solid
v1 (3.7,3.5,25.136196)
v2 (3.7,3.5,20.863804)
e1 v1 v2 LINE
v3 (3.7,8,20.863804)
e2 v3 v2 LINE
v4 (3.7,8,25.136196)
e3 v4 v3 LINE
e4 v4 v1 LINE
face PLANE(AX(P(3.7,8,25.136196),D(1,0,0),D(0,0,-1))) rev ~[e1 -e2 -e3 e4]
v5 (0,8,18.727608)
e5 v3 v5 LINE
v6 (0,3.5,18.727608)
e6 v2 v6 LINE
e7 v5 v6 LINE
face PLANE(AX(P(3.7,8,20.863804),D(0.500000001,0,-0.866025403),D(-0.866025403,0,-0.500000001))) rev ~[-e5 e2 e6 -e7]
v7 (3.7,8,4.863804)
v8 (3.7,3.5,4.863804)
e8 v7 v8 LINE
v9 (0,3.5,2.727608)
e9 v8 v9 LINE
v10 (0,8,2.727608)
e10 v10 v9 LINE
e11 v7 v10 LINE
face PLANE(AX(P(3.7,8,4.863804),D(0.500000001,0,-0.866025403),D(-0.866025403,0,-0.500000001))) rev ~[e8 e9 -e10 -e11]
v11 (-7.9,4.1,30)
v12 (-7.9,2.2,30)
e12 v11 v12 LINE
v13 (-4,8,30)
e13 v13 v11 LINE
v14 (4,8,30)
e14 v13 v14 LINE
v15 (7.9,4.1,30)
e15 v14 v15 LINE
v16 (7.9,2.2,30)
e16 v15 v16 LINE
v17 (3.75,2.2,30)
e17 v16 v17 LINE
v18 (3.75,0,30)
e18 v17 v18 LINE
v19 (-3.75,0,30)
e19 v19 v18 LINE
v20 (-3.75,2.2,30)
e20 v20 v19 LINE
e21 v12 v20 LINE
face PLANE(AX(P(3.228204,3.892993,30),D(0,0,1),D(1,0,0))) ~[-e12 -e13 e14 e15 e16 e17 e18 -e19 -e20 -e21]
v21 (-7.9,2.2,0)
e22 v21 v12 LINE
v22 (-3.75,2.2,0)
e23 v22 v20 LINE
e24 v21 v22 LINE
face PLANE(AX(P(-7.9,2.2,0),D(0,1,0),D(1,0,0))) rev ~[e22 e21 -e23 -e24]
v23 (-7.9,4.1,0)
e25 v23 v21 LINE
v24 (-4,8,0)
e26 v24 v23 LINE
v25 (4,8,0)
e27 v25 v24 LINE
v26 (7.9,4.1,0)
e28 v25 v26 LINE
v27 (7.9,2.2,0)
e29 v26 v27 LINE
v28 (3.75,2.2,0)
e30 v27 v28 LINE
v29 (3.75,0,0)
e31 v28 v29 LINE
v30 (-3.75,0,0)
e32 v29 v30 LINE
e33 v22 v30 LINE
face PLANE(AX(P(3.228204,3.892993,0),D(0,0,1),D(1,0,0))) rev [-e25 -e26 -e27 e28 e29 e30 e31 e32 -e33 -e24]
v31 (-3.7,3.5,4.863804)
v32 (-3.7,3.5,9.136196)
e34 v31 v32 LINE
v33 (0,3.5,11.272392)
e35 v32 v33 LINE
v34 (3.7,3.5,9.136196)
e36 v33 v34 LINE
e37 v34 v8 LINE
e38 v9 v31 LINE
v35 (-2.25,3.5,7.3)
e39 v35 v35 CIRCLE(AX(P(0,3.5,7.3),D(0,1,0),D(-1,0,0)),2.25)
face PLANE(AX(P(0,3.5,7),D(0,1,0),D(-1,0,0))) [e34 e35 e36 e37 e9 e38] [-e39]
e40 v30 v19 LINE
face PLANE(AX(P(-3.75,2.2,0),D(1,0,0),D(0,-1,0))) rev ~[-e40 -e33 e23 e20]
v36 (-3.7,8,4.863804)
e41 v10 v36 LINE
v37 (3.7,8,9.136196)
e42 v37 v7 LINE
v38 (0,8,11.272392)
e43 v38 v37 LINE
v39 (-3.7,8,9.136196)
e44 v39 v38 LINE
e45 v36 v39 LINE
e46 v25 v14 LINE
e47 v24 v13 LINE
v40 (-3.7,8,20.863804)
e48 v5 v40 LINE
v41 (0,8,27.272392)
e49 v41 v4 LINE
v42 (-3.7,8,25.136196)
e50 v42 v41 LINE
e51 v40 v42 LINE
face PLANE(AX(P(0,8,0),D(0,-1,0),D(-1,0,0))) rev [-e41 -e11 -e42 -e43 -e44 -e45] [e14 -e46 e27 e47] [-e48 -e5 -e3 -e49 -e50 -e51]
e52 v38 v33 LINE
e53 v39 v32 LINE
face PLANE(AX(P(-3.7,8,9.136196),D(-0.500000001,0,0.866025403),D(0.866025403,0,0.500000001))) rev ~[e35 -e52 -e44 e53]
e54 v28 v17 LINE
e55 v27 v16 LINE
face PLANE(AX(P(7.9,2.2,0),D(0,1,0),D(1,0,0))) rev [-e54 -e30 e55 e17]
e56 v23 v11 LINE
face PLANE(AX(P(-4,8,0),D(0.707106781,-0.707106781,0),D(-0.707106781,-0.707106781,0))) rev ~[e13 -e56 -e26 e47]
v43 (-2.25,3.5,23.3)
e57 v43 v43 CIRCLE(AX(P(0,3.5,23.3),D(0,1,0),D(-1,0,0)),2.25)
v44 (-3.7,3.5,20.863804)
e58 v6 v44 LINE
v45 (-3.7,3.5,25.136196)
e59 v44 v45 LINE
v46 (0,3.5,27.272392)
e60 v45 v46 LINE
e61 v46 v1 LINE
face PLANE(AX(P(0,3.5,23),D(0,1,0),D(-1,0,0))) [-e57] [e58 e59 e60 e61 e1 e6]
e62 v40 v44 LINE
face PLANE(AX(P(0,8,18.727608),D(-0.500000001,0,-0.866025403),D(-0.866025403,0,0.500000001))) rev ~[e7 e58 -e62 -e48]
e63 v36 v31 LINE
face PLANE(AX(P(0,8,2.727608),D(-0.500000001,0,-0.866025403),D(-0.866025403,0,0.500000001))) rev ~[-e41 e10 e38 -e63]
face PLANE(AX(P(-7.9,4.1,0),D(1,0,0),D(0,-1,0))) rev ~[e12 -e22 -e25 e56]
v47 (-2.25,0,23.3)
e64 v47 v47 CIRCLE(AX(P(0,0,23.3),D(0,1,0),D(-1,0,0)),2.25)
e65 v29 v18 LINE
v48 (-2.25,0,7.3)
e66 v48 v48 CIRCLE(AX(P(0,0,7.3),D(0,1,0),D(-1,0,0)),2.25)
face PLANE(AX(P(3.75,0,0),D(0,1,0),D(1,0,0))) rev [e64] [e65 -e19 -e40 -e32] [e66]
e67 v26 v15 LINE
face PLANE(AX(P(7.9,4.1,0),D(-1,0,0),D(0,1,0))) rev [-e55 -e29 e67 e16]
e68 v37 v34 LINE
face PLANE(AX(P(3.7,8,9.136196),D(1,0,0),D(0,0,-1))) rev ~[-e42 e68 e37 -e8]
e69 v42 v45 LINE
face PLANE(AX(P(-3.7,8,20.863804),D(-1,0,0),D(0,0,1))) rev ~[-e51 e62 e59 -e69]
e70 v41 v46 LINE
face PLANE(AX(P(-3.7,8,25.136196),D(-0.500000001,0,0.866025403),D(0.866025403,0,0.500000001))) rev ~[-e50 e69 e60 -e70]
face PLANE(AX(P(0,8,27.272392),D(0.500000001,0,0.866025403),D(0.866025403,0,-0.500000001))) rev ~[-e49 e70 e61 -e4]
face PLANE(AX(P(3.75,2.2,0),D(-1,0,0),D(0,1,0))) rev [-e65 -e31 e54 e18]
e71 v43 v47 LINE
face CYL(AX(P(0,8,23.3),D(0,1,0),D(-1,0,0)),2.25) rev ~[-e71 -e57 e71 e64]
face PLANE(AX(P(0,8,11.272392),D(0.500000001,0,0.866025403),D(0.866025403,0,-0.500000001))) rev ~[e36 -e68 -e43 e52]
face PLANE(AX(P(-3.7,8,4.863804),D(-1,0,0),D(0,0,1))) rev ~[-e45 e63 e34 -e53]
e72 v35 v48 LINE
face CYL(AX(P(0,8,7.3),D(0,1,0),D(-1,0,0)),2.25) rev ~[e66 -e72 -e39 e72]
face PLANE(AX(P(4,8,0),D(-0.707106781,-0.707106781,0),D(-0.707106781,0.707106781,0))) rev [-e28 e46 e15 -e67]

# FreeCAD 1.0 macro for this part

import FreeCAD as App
import Part
import Sketcher

V = App.Vector
Q = App.Units.Quantity

doc = App.newDocument("Part")
body = doc.addObject("PartDesign::Body", "Body")

sketch1 = body.newObject("Sketcher::SketchObject", "Sketch")
sketch1.AttachmentSupport = (doc.getObject("XY_Plane"), [""])
sketch1.MapMode = "FlatFace"
sketch1.addGeometry([
    Part.LineSegment(V(0, 0, 0), V(0, 8, 0)),
    Part.LineSegment(V(0, 8, 0), V(-4, 8, 0)),
    Part.LineSegment(V(-4, 8, 0), V(-7.9, 4.1, 0)),
    Part.LineSegment(V(-7.9, 4.1, 0), V(-7.9, 2.2, 0)),
    Part.LineSegment(V(-7.9, 2.2, 0), V(-3.8, 2.2, 0)),
    Part.LineSegment(V(-3.8, 2.2, 0), V(-3.8, 0, 0)),
    Part.LineSegment(V(-3.8, 0, 0), V(0, 0, 0)),
], False)
sketch1.addConstraint([
    Sketcher.Constraint("Coincident", 0, 2, 1, 1),
    Sketcher.Constraint("Coincident", 1, 2, 2, 1),
    Sketcher.Constraint("Coincident", 2, 2, 3, 1),
    Sketcher.Constraint("Coincident", 3, 2, 4, 1),
    Sketcher.Constraint("Coincident", 4, 2, 5, 1),
    Sketcher.Constraint("Coincident", 5, 2, 6, 1),
    Sketcher.Constraint("Coincident", 6, 2, 0, 1),
    Sketcher.Constraint("Vertical", 0),
    Sketcher.Constraint("Horizontal", 1),
    Sketcher.Constraint("Vertical", 3),
    Sketcher.Constraint("Horizontal", 4),
    Sketcher.Constraint("Vertical", 5),
    Sketcher.Constraint("Horizontal", 6),
    Sketcher.Constraint("Coincident", 6, 2, -1, 1),
    Sketcher.Constraint("DistanceX", 1, 2, 1, 1, Q("4 mm")),
    Sketcher.Constraint("DistanceY", 0, 1, 0, 2, Q("8 mm")),
    Sketcher.Constraint("Angle", 2, Q("-135 deg")),
    Sketcher.Constraint("DistanceY", 3, 2, 3, 1, Q("1.9 mm")),
    Sketcher.Constraint("DistanceY", 5, 2, 5, 1, Q("2.2 mm")),
    Sketcher.Constraint("DistanceX", 4, 1, 4, 2, Q("4.15 mm")),
])
pad1 = body.newObject("PartDesign::Pad", "Pad")
pad1.Profile = sketch1
pad1.Length = 30
doc.recompute()

mirrored = body.newObject("PartDesign::Mirrored", "Mirrored")
mirrored.Originals = [pad1]
mirrored.MirrorPlane = (doc.getObject("YZ_Plane"), [""])
body.Tip = mirrored

sketch2 = body.newObject("Sketcher::SketchObject", "Sketch001")
sketch2.AttachmentSupport = (doc.getObject("XZ_Plane"), [""])
sketch2.MapMode = "FlatFace"
sketch2.AttachmentOffset = App.Placement(V(0, 0, -8), App.Rotation())
sketch2.addGeometry([
    Part.LineSegment(V(0, 2.7, 0), V(-3.7, 4.9, 0)),
    Part.LineSegment(V(-3.7, 4.9, 0), V(-3.7, 9.1, 0)),
    Part.LineSegment(V(-3.7, 9.1, 0), V(0, 11.3, 0)),
    Part.LineSegment(V(0, 11.3, 0), V(3.7, 9.1, 0)),
    Part.LineSegment(V(3.7, 9.1, 0), V(3.7, 4.9, 0)),
    Part.LineSegment(V(3.7, 4.9, 0), V(0, 2.7, 0)),
], False)
sketch2.addConstraint([
    Sketcher.Constraint("Coincident", 0, 2, 1, 1),
    Sketcher.Constraint("Coincident", 1, 2, 2, 1),
    Sketcher.Constraint("Coincident", 2, 2, 3, 1),
    Sketcher.Constraint("Coincident", 3, 2, 4, 1),
    Sketcher.Constraint("Coincident", 4, 2, 5, 1),
    Sketcher.Constraint("Coincident", 5, 2, 0, 1),
    Sketcher.Constraint("Vertical", 1),
    Sketcher.Constraint("Vertical", 4),
    Sketcher.Constraint("Symmetric", 1, 2, 3, 2, -2),
    Sketcher.Constraint("PointOnObject", 2, 2, -2),
    Sketcher.Constraint("PointOnObject", 5, 2, -2),
    Sketcher.Constraint("Parallel", 0, 3),
    Sketcher.Constraint("Parallel", 2, 5),
    Sketcher.Constraint("Angle", 0, Q("150 deg")),
    Sketcher.Constraint("DistanceX", 0, 2, -1, 1, Q("3.7 mm")),
    Sketcher.Constraint("DistanceY", 1, 1, 1, 2, Q("4.272392 mm")),
    Sketcher.Constraint("DistanceY", -1, 1, 5, 2, Q("2.727608 mm")),
])
pocket1 = body.newObject("PartDesign::Pocket", "Pocket")
pocket1.Profile = sketch2
pocket1.Length = 4.5
pocket1.Reversed = True
doc.recompute()

linearpattern = body.newObject("PartDesign::LinearPattern", "LinearPattern")
linearpattern.Originals = [pocket1]
linearpattern.Direction = (doc.getObject("Z_Axis"), [""])
linearpattern.Mode = "offset"
linearpattern.Offset = 16
linearpattern.Occurrences = 2
body.Tip = linearpattern

sketch3 = body.newObject("Sketcher::SketchObject", "Sketch002")
sketch3.AttachmentSupport = (doc.getObject("XZ_Plane"), [""])
sketch3.MapMode = "FlatFace"
sketch3.AttachmentOffset = App.Placement(V(0, 0, -8), App.Rotation())
sketch3.addGeometry(Part.Circle(V(0, 7.3, 0), V(0, 0, 1), 2.2), False)
sketch3.addConstraint([
    Sketcher.Constraint("PointOnObject", 0, 3, -2),
    Sketcher.Constraint("Diameter", 0, Q("4.5 mm")),
    Sketcher.Constraint("DistanceY", -1, 1, 0, 3, Q("7.3 mm")),
])
pocket2 = body.newObject("PartDesign::Pocket", "Pocket001")
pocket2.Profile = sketch3
pocket2.Length = 25
pocket2.Reversed = True
doc.recompute()

linearpattern2 = body.newObject("PartDesign::LinearPattern", "LinearPattern001")
linearpattern2.Originals = [pocket2]
linearpattern2.Direction = (doc.getObject("Z_Axis"), [""])
linearpattern2.Mode = "offset"
linearpattern2.Offset = 16
linearpattern2.Occurrences = 2
body.Tip = linearpattern2

doc.recompute()
